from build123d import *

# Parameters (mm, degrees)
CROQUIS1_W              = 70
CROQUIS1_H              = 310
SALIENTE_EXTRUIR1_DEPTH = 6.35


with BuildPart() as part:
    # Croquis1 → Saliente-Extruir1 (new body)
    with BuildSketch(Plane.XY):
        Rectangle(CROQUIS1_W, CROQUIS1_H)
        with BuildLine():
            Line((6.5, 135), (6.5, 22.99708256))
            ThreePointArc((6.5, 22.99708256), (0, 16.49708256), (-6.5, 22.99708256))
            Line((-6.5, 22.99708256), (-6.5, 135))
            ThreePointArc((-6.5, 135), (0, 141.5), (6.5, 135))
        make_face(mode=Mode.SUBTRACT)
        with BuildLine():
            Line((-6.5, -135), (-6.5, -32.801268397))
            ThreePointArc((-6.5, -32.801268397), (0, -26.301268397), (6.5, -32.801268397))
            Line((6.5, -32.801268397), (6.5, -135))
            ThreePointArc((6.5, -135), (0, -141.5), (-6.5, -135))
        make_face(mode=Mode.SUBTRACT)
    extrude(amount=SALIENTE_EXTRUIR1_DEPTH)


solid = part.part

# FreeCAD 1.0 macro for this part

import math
import FreeCAD as App
import Part
import Sketcher
Q = App.Units.Quantity


def add_polygon(sketch, points):
    """Adds a closed chain of lines whose ends are joined by coincident constraints."""
    first, n = sketch.GeometryCount, len(points)
    for a, b in zip(points, points[1:] + points[:1]):
        sketch.addGeometry(Part.LineSegment(App.Vector(*a, 0), App.Vector(*b, 0)), False)
    for i in range(n):
        sketch.addConstraint(Sketcher.Constraint("Coincident", first + i, 2, first + (i + 1) % n, 1))

doc = App.newDocument("Part")
body = doc.addObject("PartDesign::Body", "Body")

# Sketch on XY plane
sketch1 = body.newObject("Sketcher::SketchObject", "Sketch")
sketch1.AttachmentSupport = (doc.getObject("XY_Plane"), [""])
sketch1.MapMode = "FlatFace"
add_polygon(sketch1, [(-35, 155), (-35, -155), (35, -155), (35, 155)])  # lines 0-3
sketch1.addGeometry(Part.ArcOfCircle(Part.Circle(App.Vector(0, -135, 0), App.Vector(0, 0, 1), 6), math.radians(180), math.radians(360)), False)  # 4
sketch1.addGeometry(Part.LineSegment(App.Vector(-6, -135, 0), App.Vector(-6, -33, 0)), False)  # 5
sketch1.addGeometry(Part.ArcOfCircle(Part.Circle(App.Vector(0, -33, 0), App.Vector(0, 0, 1), 6), math.radians(0), math.radians(180)), False)  # 6
sketch1.addGeometry(Part.LineSegment(App.Vector(6, -33, 0), App.Vector(6, -135, 0)), False)  # 7
sketch1.addGeometry(Part.ArcOfCircle(Part.Circle(App.Vector(0, 135, 0), App.Vector(0, 0, 1), 6), math.radians(0), math.radians(180)), False)  # 8
sketch1.addGeometry(Part.LineSegment(App.Vector(6, 135, 0), App.Vector(6, 23, 0)), False)  # 9
sketch1.addGeometry(Part.ArcOfCircle(Part.Circle(App.Vector(0, 23, 0), App.Vector(0, 0, 1), 6), math.radians(180), math.radians(360)), False)  # 10
sketch1.addGeometry(Part.LineSegment(App.Vector(-6, 23, 0), App.Vector(-6, 135, 0)), False)  # 11
sketch1.addConstraint(Sketcher.Constraint("Tangent", 4, 1, 5, 1))
sketch1.addConstraint(Sketcher.Constraint("Tangent", 5, 2, 6, 2))
sketch1.addConstraint(Sketcher.Constraint("Tangent", 6, 1, 7, 1))
sketch1.addConstraint(Sketcher.Constraint("Tangent", 7, 2, 4, 2))
sketch1.addConstraint(Sketcher.Constraint("Tangent", 8, 1, 9, 1))
sketch1.addConstraint(Sketcher.Constraint("Tangent", 9, 2, 10, 2))
sketch1.addConstraint(Sketcher.Constraint("Tangent", 10, 1, 11, 1))
sketch1.addConstraint(Sketcher.Constraint("Tangent", 11, 2, 8, 2))
sketch1.addConstraint(Sketcher.Constraint("Vertical", 0))
sketch1.addConstraint(Sketcher.Constraint("Horizontal", 1))
sketch1.addConstraint(Sketcher.Constraint("Vertical", 2))
sketch1.addConstraint(Sketcher.Constraint("Horizontal", 3))
sketch1.addConstraint(Sketcher.Constraint("Vertical", 5))
sketch1.addConstraint(Sketcher.Constraint("Vertical", 7))
sketch1.addConstraint(Sketcher.Constraint("Vertical", 9))
sketch1.addConstraint(Sketcher.Constraint("Vertical", 11))
sketch1.addConstraint(Sketcher.Constraint("Equal", 6, 8))
sketch1.addConstraint(Sketcher.Constraint("Symmetric", 4, 3, 8, 3, -1, 1))
sketch1.addConstraint(Sketcher.Constraint("Symmetric", 0, 2, 2, 2, -1, 1))
sketch1.addConstraint(Sketcher.Constraint("PointOnObject", 4, 3, -2))
sketch1.addConstraint(Sketcher.Constraint("Radius", 4, Q("6.5 mm")))
sketch1.addConstraint(Sketcher.Constraint("DistanceX", 1, 1, 1, 2, Q("70 mm")))
sketch1.addConstraint(Sketcher.Constraint("DistanceY", 0, 2, 0, 1, Q("310 mm")))
sketch1.addConstraint(Sketcher.Constraint("DistanceY", 4, 3, -1, 1, Q("135 mm")))
sketch1.addConstraint(Sketcher.Constraint("DistanceY", 5, 1, 5, 2, Q("102.198732 mm")))
sketch1.addConstraint(Sketcher.Constraint("DistanceY", 9, 2, 9, 1, Q("112.002917 mm")))
pad1 = body.newObject("PartDesign::Pad", "Pad")
pad1.Profile = sketch1
pad1.Length = 6.35

doc.recompute()
